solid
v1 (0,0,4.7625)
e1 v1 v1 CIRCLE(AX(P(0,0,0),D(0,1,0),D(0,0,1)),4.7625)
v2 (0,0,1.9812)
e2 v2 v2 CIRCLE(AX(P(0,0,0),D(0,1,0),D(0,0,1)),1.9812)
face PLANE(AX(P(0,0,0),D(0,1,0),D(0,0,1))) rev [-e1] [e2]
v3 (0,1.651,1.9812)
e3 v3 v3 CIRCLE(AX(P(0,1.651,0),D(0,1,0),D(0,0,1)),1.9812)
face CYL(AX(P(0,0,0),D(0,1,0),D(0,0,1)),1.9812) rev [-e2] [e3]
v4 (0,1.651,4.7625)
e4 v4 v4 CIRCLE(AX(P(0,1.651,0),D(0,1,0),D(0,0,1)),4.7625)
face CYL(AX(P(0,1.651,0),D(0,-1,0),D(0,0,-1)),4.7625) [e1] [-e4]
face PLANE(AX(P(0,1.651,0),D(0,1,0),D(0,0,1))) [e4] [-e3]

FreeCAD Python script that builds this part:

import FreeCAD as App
import Part
import Sketcher
Q = App.Units.Quantity

doc = App.newDocument("Part")
body = doc.addObject("PartDesign::Body", "Body")

# Sketch on XZ plane
sketch1 = doc.addObject("Sketcher::SketchObject", "Sketch")
body.addObject(sketch1)
sketch1.AttachmentSupport = (doc.XZ_Plane, [""])
sketch1.MapMode = "FlatFace"
sketch1.addGeometry(Part.Circle(App.Vector(0, 0, 0), App.Vector(0, 0, 1), 4.7625), False)
sketch1.addConstraint(Sketcher.Constraint("Coincident", 0, 3, -1, 1))
sketch1.addConstraint(Sketcher.Constraint("Diameter", 0, Q("0.375 in")))
pad1 = doc.addObject("PartDesign::Pad", "Pad")
body.addObject(pad1)
pad1.Profile = sketch1
pad1.Length = Q("0.065 in")
pad1.Reversed = True

# Sketch on XZ plane
sketch2 = doc.addObject("Sketcher::SketchObject", "Sketch001")
body.addObject(sketch2)
sketch2.AttachmentSupport = (doc.XZ_Plane, [""])
sketch2.MapMode = "FlatFace"
sketch2.AttachmentOffset = App.Placement(App.Vector(0, 0, -0.065 * 25.4), App.Rotation())
sketch2.addGeometry(Part.Circle(App.Vector(0, 0, 0), App.Vector(0, 0, 1), 1.9812), False)
sketch2.addConstraint(Sketcher.Constraint("Coincident", 0, 3, -1, 1))
sketch2.addConstraint(Sketcher.Constraint("Diameter", 0, Q("0.156 in")))
pocket1 = doc.addObject("PartDesign::Pocket", "Pocket")
body.addObject(pocket1)
pocket1.Profile = sketch2
pocket1.Type = "ThroughAll"
pocket1.Reversed = True

doc.recompute()
